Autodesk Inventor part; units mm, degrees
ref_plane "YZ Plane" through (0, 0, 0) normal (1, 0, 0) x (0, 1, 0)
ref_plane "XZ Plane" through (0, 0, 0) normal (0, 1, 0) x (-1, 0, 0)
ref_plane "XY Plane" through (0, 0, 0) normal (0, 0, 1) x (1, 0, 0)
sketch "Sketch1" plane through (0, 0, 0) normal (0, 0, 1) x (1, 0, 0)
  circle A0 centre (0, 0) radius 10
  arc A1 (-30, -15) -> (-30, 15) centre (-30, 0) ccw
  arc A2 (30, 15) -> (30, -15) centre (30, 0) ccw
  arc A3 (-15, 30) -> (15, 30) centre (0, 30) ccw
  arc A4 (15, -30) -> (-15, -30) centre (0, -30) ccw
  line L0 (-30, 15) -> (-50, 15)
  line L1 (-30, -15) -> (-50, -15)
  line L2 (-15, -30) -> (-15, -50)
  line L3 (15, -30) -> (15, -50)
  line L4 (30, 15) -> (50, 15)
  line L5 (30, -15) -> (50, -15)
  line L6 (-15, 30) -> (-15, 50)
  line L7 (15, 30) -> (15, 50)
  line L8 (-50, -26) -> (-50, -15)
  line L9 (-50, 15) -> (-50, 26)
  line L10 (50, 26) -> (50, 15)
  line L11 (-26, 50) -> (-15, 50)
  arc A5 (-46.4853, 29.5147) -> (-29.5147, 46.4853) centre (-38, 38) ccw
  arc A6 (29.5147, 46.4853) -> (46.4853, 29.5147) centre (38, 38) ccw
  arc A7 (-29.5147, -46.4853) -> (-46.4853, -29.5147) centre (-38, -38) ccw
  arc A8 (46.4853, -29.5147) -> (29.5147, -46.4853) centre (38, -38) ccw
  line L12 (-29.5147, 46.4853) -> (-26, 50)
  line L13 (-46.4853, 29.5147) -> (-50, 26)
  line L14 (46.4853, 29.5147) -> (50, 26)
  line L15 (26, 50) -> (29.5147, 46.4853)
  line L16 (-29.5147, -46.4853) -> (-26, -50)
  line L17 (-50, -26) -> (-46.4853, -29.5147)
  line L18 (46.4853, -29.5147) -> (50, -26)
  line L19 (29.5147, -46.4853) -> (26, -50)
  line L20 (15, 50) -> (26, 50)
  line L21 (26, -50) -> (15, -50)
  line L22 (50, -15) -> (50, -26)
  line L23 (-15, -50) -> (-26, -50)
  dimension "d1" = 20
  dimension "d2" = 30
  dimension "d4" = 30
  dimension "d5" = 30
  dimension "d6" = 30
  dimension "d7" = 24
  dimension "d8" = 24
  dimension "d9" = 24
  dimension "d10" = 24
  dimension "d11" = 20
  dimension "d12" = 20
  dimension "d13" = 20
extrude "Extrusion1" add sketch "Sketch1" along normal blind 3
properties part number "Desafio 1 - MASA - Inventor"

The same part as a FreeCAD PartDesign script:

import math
import FreeCAD as App
import Part
import Sketcher

doc = App.newDocument("Part")
body = doc.addObject("PartDesign::Body", "Body")

sketch1 = doc.addObject("Sketcher::SketchObject", "Sketch")
body.addObject(sketch1)
sketch1.AttachmentSupport = (doc.XY_Plane, [""])
sketch1.MapMode = "FlatFace"
sketch1.addGeometry([
    Part.ArcOfCircle(Part.Circle(App.Vector(-30, 0, 0), App.Vector(0, 0, 1), 15), math.radians(-90), math.radians(90)),
    Part.LineSegment(App.Vector(-30, -15, 0), App.Vector(-50, -15, 0)),
    Part.LineSegment(App.Vector(-50, -15, 0), App.Vector(-50, -26, 0)),
    Part.LineSegment(App.Vector(-50, -26, 0), App.Vector(-46.5, -29.5, 0)),
    Part.ArcOfCircle(Part.Circle(App.Vector(-38, -38, 0), App.Vector(0, 0, 1), 12), math.radians(-45), math.radians(135)),
    Part.LineSegment(App.Vector(-29.5, -46.5, 0), App.Vector(-26, -50, 0)),
    Part.LineSegment(App.Vector(-26, -50, 0), App.Vector(-15, -50, 0)),
    Part.LineSegment(App.Vector(-15, -50, 0), App.Vector(-15, -30, 0)),
    Part.ArcOfCircle(Part.Circle(App.Vector(0, -30, 0), App.Vector(0, 0, 1), 15), math.radians(0), math.radians(180)),
    Part.LineSegment(App.Vector(15, -30, 0), App.Vector(15, -50, 0)),
    Part.LineSegment(App.Vector(15, -50, 0), App.Vector(26, -50, 0)),
    Part.LineSegment(App.Vector(26, -50, 0), App.Vector(29.5, -46.5, 0)),
    Part.ArcOfCircle(Part.Circle(App.Vector(38, -38, 0), App.Vector(0, 0, 1), 12), math.radians(45), math.radians(225)),
    Part.LineSegment(App.Vector(46.5, -29.5, 0), App.Vector(50, -26, 0)),
    Part.LineSegment(App.Vector(50, -26, 0), App.Vector(50, -15, 0)),
    Part.LineSegment(App.Vector(50, -15, 0), App.Vector(30, -15, 0)),
    Part.ArcOfCircle(Part.Circle(App.Vector(30, 0, 0), App.Vector(0, 0, 1), 15), math.radians(90), math.radians(270)),
    Part.LineSegment(App.Vector(30, 15, 0), App.Vector(50, 15, 0)),
    Part.LineSegment(App.Vector(50, 15, 0), App.Vector(50, 26, 0)),
    Part.LineSegment(App.Vector(50, 26, 0), App.Vector(46.5, 29.5, 0)),
    Part.ArcOfCircle(Part.Circle(App.Vector(38, 38, 0), App.Vector(0, 0, 1), 12), math.radians(135), math.radians(315)),
    Part.LineSegment(App.Vector(29.5, 46.5, 0), App.Vector(26, 50, 0)),
    Part.LineSegment(App.Vector(26, 50, 0), App.Vector(15, 50, 0)),
    Part.LineSegment(App.Vector(15, 50, 0), App.Vector(15, 30, 0)),
    Part.ArcOfCircle(Part.Circle(App.Vector(0, 30, 0), App.Vector(0, 0, 1), 15), math.radians(180), math.radians(360)),
    Part.LineSegment(App.Vector(-15, 30, 0), App.Vector(-15, 50, 0)),
    Part.LineSegment(App.Vector(-15, 50, 0), App.Vector(-26, 50, 0)),
    Part.LineSegment(App.Vector(-26, 50, 0), App.Vector(-29.5, 46.5, 0)),
    Part.ArcOfCircle(Part.Circle(App.Vector(-38, 38, 0), App.Vector(0, 0, 1), 12), math.radians(-135), math.radians(45)),
    Part.LineSegment(App.Vector(-46.5, 29.5, 0), App.Vector(-50, 26, 0)),
    Part.LineSegment(App.Vector(-50, 26, 0), App.Vector(-50, 15, 0)),
    Part.LineSegment(App.Vector(-50, 15, 0), App.Vector(-30, 15, 0)),
    Part.Circle(App.Vector(0, 0, 0), App.Vector(0, 0, 1), 10),
], False)
sketch1.addConstraint([
    Sketcher.Constraint("Tangent", 0, 1, 1, 1),
    Sketcher.Constraint("Coincident", 1, 2, 2, 1),
    Sketcher.Constraint("Coincident", 2, 2, 3, 1),
    Sketcher.Constraint("Coincident", 3, 2, 4, 2),
    Sketcher.Constraint("Coincident", 4, 1, 5, 1),
    Sketcher.Constraint("Coincident", 5, 2, 6, 1),
    Sketcher.Constraint("Coincident", 6, 2, 7, 1),
    Sketcher.Constraint("Tangent", 7, 2, 8, 2),
    Sketcher.Constraint("Tangent", 8, 1, 9, 1),
    Sketcher.Constraint("Coincident", 9, 2, 10, 1),
    Sketcher.Constraint("Coincident", 10, 2, 11, 1),
    Sketcher.Constraint("Coincident", 11, 2, 12, 2),
    Sketcher.Constraint("Coincident", 12, 1, 13, 1),
    Sketcher.Constraint("Coincident", 13, 2, 14, 1),
    Sketcher.Constraint("Coincident", 14, 2, 15, 1),
    Sketcher.Constraint("Tangent", 15, 2, 16, 2),
    Sketcher.Constraint("Tangent", 16, 1, 17, 1),
    Sketcher.Constraint("Coincident", 17, 2, 18, 1),
    Sketcher.Constraint("Coincident", 18, 2, 19, 1),
    Sketcher.Constraint("Coincident", 19, 2, 20, 2),
    Sketcher.Constraint("Coincident", 20, 1, 21, 1),
    Sketcher.Constraint("Coincident", 21, 2, 22, 1),
    Sketcher.Constraint("Coincident", 22, 2, 23, 1),
    Sketcher.Constraint("Tangent", 23, 2, 24, 2),
    Sketcher.Constraint("Tangent", 24, 1, 25, 1),
    Sketcher.Constraint("Coincident", 25, 2, 26, 1),
    Sketcher.Constraint("Coincident", 26, 2, 27, 1),
    Sketcher.Constraint("Coincident", 27, 2, 28, 2),
    Sketcher.Constraint("Coincident", 28, 1, 29, 1),
    Sketcher.Constraint("Coincident", 29, 2, 30, 1),
    Sketcher.Constraint("Coincident", 30, 2, 31, 1),
    Sketcher.Constraint("Tangent", 31, 2, 0, 2),
    Sketcher.Constraint("Horizontal", 1),
    Sketcher.Constraint("Vertical", 2),
    Sketcher.Constraint("Horizontal", 6),
    Sketcher.Constraint("Vertical", 7),
    Sketcher.Constraint("Vertical", 9),
    Sketcher.Constraint("Horizontal", 10),
    Sketcher.Constraint("Vertical", 14),
    Sketcher.Constraint("Horizontal", 15),
    Sketcher.Constraint("Horizontal", 17),
    Sketcher.Constraint("Vertical", 18),
    Sketcher.Constraint("Horizontal", 22),
    Sketcher.Constraint("Vertical", 23),
    Sketcher.Constraint("Vertical", 25),
    Sketcher.Constraint("Horizontal", 26),
    Sketcher.Constraint("Vertical", 30),
    Sketcher.Constraint("Horizontal", 31),
    Sketcher.Constraint("Coincident", 32, 3, -1, 1),
    Sketcher.Constraint("Equal", 0, 8),
    Sketcher.Constraint("Equal", 4, 12),
    Sketcher.Constraint("Equal", 8, 16),
    Sketcher.Constraint("Equal", 12, 20),
    Sketcher.Constraint("Equal", 16, 24),
    Sketcher.Constraint("Equal", 20, 28),
    Sketcher.Constraint("Symmetric", 0, 3, 16, 3, -1, 1),
    Sketcher.Constraint("Symmetric", 4, 3, 20, 3, -1, 1),
    Sketcher.Constraint("Symmetric", 8, 3, 24, 3, -1, 1),
    Sketcher.Constraint("Symmetric", 12, 3, 28, 3, -1, 1),
    Sketcher.Constraint("Symmetric", 2, 2, 18, 2, -1, 1),
    Sketcher.Constraint("Symmetric", 5, 2, 21, 2, -1, 1),
    Sketcher.Constraint("Symmetric", 10, 2, 26, 2, -1, 1),
    Sketcher.Constraint("Symmetric", 13, 2, 29, 2, -1, 1),
    Sketcher.Constraint("Symmetric", 4, 3, 12, 3, -2),
    Sketcher.Constraint("Symmetric", 6, 2, 9, 2, -2),
    Sketcher.Constraint("Symmetric", 2, 2, 13, 2, -2),
    Sketcher.Constraint("PointOnObject", 0, 3, -1),
    Sketcher.Constraint("Parallel", 3, 5),
    Sketcher.Constraint("Perpendicular", 5, 11),
    Sketcher.Constraint("Parallel", 11, 13),
    Sketcher.Constraint("Perpendicular", 13, 19),
    Sketcher.Constraint("Parallel", 19, 21),
    Sketcher.Constraint("Perpendicular", 21, 27),
    Sketcher.Constraint("Parallel", 27, 29),
    Sketcher.Constraint("Horizontal", 4, 1, 11, 2),
    Sketcher.Constraint("Horizontal", 3, 2, 12, 1),
    Sketcher.Constraint("Equal", 26, 2),
    Sketcher.Constraint("Equal", 31, 7),
    Sketcher.Constraint("Equal", 3, 5),
    Sketcher.Constraint("Diameter", 32, 20.0),
    Sketcher.Constraint("Radius", 0, 15.0),
    Sketcher.Constraint("Radius", 4, 12.0),
    Sketcher.Constraint("DistanceX", 1, 2, 1, 1, 20.0),
    Sketcher.Constraint("DistanceX", 0, 3, -1, 1, 30.0),
    Sketcher.Constraint("DistanceY", 8, 3, -1, 1, 30.0),
    Sketcher.Constraint("DistanceX", 2, 2, 5, 2, 24.0),
    Sketcher.Constraint("DistanceX", 4, 3, -1, 1, 38.0),
])
pad1 = doc.addObject("PartDesign::Pad", "Pad")
body.addObject(pad1)
pad1.Profile = sketch1
pad1.Length = 3

doc.recompute()
